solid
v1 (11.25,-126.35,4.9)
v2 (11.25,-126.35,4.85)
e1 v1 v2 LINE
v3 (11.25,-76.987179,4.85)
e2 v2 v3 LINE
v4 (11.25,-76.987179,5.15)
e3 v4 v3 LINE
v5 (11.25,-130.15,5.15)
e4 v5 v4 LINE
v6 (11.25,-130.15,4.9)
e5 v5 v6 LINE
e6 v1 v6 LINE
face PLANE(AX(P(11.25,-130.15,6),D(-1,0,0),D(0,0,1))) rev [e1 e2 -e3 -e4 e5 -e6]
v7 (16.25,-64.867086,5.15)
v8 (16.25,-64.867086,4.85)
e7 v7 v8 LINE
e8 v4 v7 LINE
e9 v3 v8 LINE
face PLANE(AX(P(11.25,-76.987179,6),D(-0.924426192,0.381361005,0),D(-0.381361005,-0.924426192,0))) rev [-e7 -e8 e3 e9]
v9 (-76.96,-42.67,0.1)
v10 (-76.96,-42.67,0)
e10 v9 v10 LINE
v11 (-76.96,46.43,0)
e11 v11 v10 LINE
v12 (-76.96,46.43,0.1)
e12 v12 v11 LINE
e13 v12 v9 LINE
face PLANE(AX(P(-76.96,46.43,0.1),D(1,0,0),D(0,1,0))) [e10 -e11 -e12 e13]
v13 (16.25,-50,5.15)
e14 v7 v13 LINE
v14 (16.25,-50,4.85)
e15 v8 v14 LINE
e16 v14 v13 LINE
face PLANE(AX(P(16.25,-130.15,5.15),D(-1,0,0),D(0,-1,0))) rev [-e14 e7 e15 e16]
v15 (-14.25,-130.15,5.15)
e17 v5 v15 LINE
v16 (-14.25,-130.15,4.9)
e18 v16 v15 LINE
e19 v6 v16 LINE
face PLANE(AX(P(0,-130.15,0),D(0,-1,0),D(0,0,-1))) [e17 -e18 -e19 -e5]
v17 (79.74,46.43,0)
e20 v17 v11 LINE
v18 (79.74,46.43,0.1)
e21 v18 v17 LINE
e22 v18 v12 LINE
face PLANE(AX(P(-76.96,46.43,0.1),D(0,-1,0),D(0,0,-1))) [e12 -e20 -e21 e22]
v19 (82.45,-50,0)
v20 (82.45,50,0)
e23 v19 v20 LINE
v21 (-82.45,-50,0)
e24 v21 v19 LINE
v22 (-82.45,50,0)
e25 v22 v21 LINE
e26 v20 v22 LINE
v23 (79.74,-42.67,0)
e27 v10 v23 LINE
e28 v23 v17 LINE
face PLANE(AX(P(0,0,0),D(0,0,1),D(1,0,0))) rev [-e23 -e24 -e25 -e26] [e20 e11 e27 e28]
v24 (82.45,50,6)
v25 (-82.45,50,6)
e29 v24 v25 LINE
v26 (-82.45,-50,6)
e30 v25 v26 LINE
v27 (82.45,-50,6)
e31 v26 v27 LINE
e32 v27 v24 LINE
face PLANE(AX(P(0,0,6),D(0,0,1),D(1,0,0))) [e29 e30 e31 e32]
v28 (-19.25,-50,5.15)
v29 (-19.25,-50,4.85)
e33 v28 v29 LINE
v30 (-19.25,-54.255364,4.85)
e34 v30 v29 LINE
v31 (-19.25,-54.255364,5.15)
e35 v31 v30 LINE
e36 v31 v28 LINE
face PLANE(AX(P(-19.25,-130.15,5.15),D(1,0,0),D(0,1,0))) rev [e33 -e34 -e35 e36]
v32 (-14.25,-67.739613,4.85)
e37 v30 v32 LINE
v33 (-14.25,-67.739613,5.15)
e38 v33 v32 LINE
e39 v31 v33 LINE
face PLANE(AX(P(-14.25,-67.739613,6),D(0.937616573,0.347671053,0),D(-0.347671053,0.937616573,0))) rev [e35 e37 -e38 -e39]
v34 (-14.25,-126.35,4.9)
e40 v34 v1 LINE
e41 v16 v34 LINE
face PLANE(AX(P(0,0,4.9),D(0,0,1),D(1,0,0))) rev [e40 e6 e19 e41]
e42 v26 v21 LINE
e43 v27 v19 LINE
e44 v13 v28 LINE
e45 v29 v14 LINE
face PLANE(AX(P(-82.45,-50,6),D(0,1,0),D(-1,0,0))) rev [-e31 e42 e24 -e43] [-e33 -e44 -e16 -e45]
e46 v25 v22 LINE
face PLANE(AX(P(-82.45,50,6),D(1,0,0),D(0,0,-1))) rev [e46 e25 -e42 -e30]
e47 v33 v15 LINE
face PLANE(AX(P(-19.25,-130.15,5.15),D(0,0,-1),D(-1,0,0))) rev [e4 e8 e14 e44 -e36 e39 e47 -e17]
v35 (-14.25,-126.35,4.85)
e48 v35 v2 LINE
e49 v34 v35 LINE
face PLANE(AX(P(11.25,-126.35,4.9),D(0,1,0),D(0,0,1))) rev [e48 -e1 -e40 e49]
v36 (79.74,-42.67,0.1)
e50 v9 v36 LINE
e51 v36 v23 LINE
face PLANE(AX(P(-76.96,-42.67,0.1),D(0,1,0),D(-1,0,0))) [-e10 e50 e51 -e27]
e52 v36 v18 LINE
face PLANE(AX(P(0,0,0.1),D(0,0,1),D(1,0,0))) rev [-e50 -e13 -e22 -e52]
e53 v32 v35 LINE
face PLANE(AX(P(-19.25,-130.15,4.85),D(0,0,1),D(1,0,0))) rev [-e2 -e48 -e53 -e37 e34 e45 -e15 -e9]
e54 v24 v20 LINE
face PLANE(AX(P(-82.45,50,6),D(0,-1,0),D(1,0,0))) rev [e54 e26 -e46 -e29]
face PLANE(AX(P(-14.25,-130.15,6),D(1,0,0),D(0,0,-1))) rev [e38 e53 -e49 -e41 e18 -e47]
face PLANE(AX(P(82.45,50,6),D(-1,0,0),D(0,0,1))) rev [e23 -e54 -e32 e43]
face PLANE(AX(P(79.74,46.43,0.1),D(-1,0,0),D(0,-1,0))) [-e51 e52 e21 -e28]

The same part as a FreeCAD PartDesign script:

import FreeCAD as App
import Part
import Sketcher

V = App.Vector


def add_polygon(sketch, points):
    """Adds a closed chain of lines whose ends are joined by coincident constraints."""
    first, n = sketch.GeometryCount, len(points)
    for a, b in zip(points, points[1:] + points[:1]):
        sketch.addGeometry(Part.LineSegment(App.Vector(*a, 0), App.Vector(*b, 0)), False)
    for i in range(n):
        sketch.addConstraint(Sketcher.Constraint("Coincident", first + i, 2, first + (i + 1) % n, 1))

doc = App.newDocument("Part")
body = doc.addObject("PartDesign::Body", "Body")

# Sketch on XY plane
sketch1 = body.newObject("Sketcher::SketchObject", "Sketch")
sketch1.AttachmentSupport = (doc.getObject("XY_Plane"), [""])
sketch1.MapMode = "FlatFace"
add_polygon(sketch1, [(-82.45, 50), (-82.45, -50), (82.45, -50), (82.45, 50)])  # lines 0-3
sketch1.addConstraint([
    Sketcher.Constraint("Vertical", 0),
    Sketcher.Constraint("Horizontal", 1),
    Sketcher.Constraint("Vertical", 2),
    Sketcher.Constraint("Horizontal", 3),
    Sketcher.Constraint("Symmetric", 0, 2, 2, 2, -1, 1),
    Sketcher.Constraint("DistanceY", 0, 2, 0, 1, 100.0),
    Sketcher.Constraint("DistanceX", 1, 1, 1, 2, 164.9),
])
pad1 = body.newObject("PartDesign::Pad", "Pad")
pad1.Profile = sketch1
pad1.Length = 6

# Sketch on XY plane
sketch2 = body.newObject("Sketcher::SketchObject", "Sketch001")
sketch2.AttachmentSupport = (doc.getObject("XY_Plane"), [""])
sketch2.MapMode = "FlatFace"
add_polygon(sketch2, [(-76.96, 46.43), (-76.96, -42.67), (79.74, -42.67), (79.74, 46.43)])  # lines 0-3
sketch2.addConstraint([
    Sketcher.Constraint("Vertical", 0),
    Sketcher.Constraint("Horizontal", 1),
    Sketcher.Constraint("Vertical", 2),
    Sketcher.Constraint("Horizontal", 3),
    Sketcher.Constraint("DistanceX", 1, 1, 1, 2, 156.7),
    Sketcher.Constraint("DistanceY", 0, 2, 0, 1, 89.1),
    Sketcher.Constraint("DistanceX", 0, 2, -1, 1, 76.96),
    Sketcher.Constraint("DistanceY", 0, 2, -1, 1, 42.67),
])
pocket1 = body.newObject("PartDesign::Pocket", "Pocket")
pocket1.Profile = sketch2
pocket1.Length = 0.1
pocket1.Reversed = True

# Sketch on XZ plane
sketch3 = body.newObject("Sketcher::SketchObject", "Sketch002")
sketch3.AttachmentSupport = (doc.getObject("XZ_Plane"), [""])
sketch3.MapMode = "FlatFace"
sketch3.AttachmentOffset = App.Placement(V(0, 0, 50), App.Rotation())
add_polygon(sketch3, [(-19.25, 5.15), (-19.25, 4.85), (16.25, 4.85), (16.25, 5.15)])  # lines 0-3
sketch3.addConstraint([
    Sketcher.Constraint("Vertical", 0),
    Sketcher.Constraint("Horizontal", 1),
    Sketcher.Constraint("Vertical", 2),
    Sketcher.Constraint("Horizontal", 3),
    Sketcher.Constraint("DistanceX", 1, 1, 1, 2, 35.5),
    Sketcher.Constraint("DistanceY", 0, 2, 0, 1, 0.3),
    Sketcher.Constraint("DistanceX", 0, 2, -1, 1, 19.25),
    Sketcher.Constraint("DistanceY", -1, 1, 0, 2, 4.85),
])
pad2 = body.newObject("PartDesign::Pad", "Pad001")
pad2.Profile = sketch3
pad2.Length = 80.15

# Sketch on XY plane
sketch4 = body.newObject("Sketcher::SketchObject", "Sketch003")
sketch4.AttachmentSupport = (doc.getObject("XY_Plane"), [""])
sketch4.MapMode = "FlatFace"
sketch4.AttachmentOffset = App.Placement(V(0, 0, 4.85), App.Rotation())
add_polygon(sketch4, [(16.25, -130.15), (11.25, -130.15), (11.25, -76.987179), (16.25, -64.867086)])  # lines 0-3
add_polygon(sketch4, [(-14.25, -130.15), (-19.25, -130.15), (-19.25, -54.255364), (-14.25, -67.739613)])  # lines 4-7
sketch4.addConstraint([
    Sketcher.Constraint("Horizontal", 0),
    Sketcher.Constraint("Vertical", 1),
    Sketcher.Constraint("Vertical", 3),
    Sketcher.Constraint("Horizontal", 4),
    Sketcher.Constraint("Vertical", 5),
    Sketcher.Constraint("Vertical", 7),
    Sketcher.Constraint("Horizontal", 3, 2, 4, 2),
    Sketcher.Constraint("Equal", 0, 4),
    Sketcher.Constraint("DistanceX", 0, 2, 0, 1, 5.0),
    Sketcher.Constraint("DistanceX", 4, 2, 0, 2, 30.5),
    Sketcher.Constraint("DistanceX", -1, 1, 0, 2, 11.25),
    Sketcher.Constraint("DistanceY", 0, 2, -1, 1, 130.15),
    Sketcher.Constraint("DistanceY", 1, 1, 1, 2, 53.162821),
    Sketcher.Constraint("Distance", 6, 14.38141),
    Sketcher.Constraint("DistanceY", 3, 2, 3, 1, 65.282914),
    Sketcher.Constraint("DistanceY", 5, 1, 5, 2, 75.894636),
])
pocket2 = body.newObject("PartDesign::Pocket", "Pocket001")
pocket2.Profile = sketch4
pocket2.Type = "ThroughAll"
pocket2.Reversed = True

# Sketch on XY plane
sketch5 = body.newObject("Sketcher::SketchObject", "Sketch004")
sketch5.AttachmentSupport = (doc.getObject("XY_Plane"), [""])
sketch5.MapMode = "FlatFace"
sketch5.AttachmentOffset = App.Placement(V(0, 0, 4.85), App.Rotation())
add_polygon(sketch5, [(11.25, -126.35), (11.25, -130.15), (-14.25, -130.15), (-14.25, -126.35)])  # lines 0-3
sketch5.addConstraint([
    Sketcher.Constraint("Vertical", 0),
    Sketcher.Constraint("Horizontal", 1),
    Sketcher.Constraint("Vertical", 2),
    Sketcher.Constraint("Horizontal", 3),
    Sketcher.Constraint("DistanceX", 1, 2, 1, 1, 25.5),
    Sketcher.Constraint("DistanceY", 0, 2, 0, 1, 3.8),
    Sketcher.Constraint("DistanceX", -1, 1, 0, 2, 11.25),
    Sketcher.Constraint("DistanceY", 0, 2, -1, 1, 130.15),
])
pocket3 = body.newObject("PartDesign::Pocket", "Pocket002")
pocket3.Profile = sketch5
pocket3.Length = 0.05
pocket3.Reversed = True

doc.recompute()
